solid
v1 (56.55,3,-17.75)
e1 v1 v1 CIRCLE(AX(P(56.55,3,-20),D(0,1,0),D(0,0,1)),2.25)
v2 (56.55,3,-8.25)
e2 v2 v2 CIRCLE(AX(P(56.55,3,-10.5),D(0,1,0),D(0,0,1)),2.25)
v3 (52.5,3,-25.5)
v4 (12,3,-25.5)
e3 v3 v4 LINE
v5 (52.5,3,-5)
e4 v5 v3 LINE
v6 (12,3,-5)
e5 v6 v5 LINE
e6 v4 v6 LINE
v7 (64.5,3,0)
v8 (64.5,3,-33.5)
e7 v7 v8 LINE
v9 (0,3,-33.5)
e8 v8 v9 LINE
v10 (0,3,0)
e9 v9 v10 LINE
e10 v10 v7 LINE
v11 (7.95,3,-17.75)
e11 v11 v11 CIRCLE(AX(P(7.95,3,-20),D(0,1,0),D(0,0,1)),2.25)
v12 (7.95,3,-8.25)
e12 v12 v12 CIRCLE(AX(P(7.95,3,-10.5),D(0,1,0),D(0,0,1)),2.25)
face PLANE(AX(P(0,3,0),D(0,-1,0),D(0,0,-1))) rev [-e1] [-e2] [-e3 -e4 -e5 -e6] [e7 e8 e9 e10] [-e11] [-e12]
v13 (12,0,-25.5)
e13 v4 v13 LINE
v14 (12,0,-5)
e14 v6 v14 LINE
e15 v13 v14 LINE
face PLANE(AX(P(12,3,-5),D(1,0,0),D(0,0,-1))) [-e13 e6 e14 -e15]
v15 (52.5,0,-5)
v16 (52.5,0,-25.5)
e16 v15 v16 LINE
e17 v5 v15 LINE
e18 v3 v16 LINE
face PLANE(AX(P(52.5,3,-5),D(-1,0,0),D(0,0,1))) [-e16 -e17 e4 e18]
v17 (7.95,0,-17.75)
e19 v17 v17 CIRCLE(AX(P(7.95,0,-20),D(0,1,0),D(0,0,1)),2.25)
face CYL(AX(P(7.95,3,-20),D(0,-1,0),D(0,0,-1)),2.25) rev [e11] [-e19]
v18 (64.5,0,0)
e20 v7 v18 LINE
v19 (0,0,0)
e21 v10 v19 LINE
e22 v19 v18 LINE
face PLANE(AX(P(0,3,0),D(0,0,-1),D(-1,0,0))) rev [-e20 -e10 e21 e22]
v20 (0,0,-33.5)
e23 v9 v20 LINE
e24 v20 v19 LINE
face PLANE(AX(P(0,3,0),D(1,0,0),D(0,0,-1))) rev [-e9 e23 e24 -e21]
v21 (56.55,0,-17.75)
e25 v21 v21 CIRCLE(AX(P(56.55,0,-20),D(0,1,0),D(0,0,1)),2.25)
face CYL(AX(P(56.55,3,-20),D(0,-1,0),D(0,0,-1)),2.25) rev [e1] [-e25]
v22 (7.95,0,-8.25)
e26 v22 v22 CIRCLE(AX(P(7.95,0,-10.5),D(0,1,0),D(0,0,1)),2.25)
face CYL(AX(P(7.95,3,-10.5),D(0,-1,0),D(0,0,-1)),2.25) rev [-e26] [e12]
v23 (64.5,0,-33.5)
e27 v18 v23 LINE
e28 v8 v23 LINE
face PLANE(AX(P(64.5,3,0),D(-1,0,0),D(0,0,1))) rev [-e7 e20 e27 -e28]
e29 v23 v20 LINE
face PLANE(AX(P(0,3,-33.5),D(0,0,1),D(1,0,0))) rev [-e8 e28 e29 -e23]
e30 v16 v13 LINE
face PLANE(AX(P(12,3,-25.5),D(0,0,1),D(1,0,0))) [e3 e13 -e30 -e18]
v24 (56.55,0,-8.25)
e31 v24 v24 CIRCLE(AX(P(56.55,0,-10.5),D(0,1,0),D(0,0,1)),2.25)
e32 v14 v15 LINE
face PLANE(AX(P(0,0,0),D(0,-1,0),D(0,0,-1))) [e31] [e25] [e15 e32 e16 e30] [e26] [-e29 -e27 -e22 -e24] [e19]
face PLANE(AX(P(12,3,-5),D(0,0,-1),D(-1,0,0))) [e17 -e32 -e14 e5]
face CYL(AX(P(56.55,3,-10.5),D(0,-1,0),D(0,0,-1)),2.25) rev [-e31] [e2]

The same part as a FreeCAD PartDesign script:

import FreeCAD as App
import Part
import Sketcher
from FreeCAD import Vector

doc = App.newDocument("Part")
body = doc.addObject("PartDesign::Body", "Body")

# Sketch on XZ plane
sketch1 = body.newObject("Sketcher::SketchObject", "Sketch")
sketch1.AttachmentSupport = (doc.getObject("XZ_Plane"), [""])
sketch1.MapMode = "FlatFace"
sketch1.addGeometry([
    Part.LineSegment(Vector(0, -33.5, 0), Vector(0, 0, 0)),  # 0
    Part.LineSegment(Vector(0, 0, 0), Vector(64.5, 0, 0)),  # 1
    Part.LineSegment(Vector(64.5, 0, 0), Vector(64.5, -33.5, 0)),  # 2
    Part.LineSegment(Vector(64.5, -33.5, 0), Vector(0, -33.5, 0)),  # 3
    Part.Circle(Vector(8, -10.5, 0), Vector(0, 0, 1), 2.2),  # 4
    Part.Circle(Vector(56.5, -10.5, 0), Vector(0, 0, 1), 2.2),  # 5
    Part.Circle(Vector(8, -20, 0), Vector(0, 0, 1), 2.2),  # 6
    Part.LineSegment(Vector(52.5, -5, 0), Vector(12, -5, 0)),  # 7
    Part.LineSegment(Vector(12, -5, 0), Vector(12, -25.5, 0)),  # 8
    Part.LineSegment(Vector(12, -25.5, 0), Vector(52.5, -25.5, 0)),  # 9
    Part.LineSegment(Vector(52.5, -25.5, 0), Vector(52.5, -5, 0)),  # 10
    Part.Circle(Vector(56.5, -20, 0), Vector(0, 0, 1), 2.2),  # 11
], False)
sketch1.addConstraint([
    Sketcher.Constraint("Coincident", 0, 2, 1, 1),
    Sketcher.Constraint("Coincident", 1, 2, 2, 1),
    Sketcher.Constraint("Coincident", 2, 2, 3, 1),
    Sketcher.Constraint("Coincident", 3, 2, 0, 1),
    Sketcher.Constraint("Coincident", 7, 2, 8, 1),
    Sketcher.Constraint("Coincident", 8, 2, 9, 1),
    Sketcher.Constraint("Coincident", 9, 2, 10, 1),
    Sketcher.Constraint("Coincident", 10, 2, 7, 1),
    Sketcher.Constraint("Vertical", 0),
    Sketcher.Constraint("Horizontal", 1),
    Sketcher.Constraint("Vertical", 2),
    Sketcher.Constraint("Horizontal", 3),
    Sketcher.Constraint("Horizontal", 7),
    Sketcher.Constraint("Vertical", 8),
    Sketcher.Constraint("Horizontal", 9),
    Sketcher.Constraint("Vertical", 10),
    Sketcher.Constraint("Coincident", 0, 2, -1, 1),
    Sketcher.Constraint("Equal", 4, 5),
    Sketcher.Constraint("Equal", 5, 6),
    Sketcher.Constraint("Equal", 6, 11),
    Sketcher.Constraint("Horizontal", 4, 3, 5, 3),
    Sketcher.Constraint("Horizontal", 6, 3, 11, 3),
    Sketcher.Constraint("Vertical", 4, 3, 6, 3),
    Sketcher.Constraint("Vertical", 5, 3, 11, 3),
    Sketcher.Constraint("Diameter", 4, 4.5),
    Sketcher.Constraint("DistanceX", 1, 1, 1, 2, 64.5),
    Sketcher.Constraint("DistanceX", 7, 2, 7, 1, 40.5),
    Sketcher.Constraint("DistanceY", 0, 1, 0, 2, 33.5),
    Sketcher.Constraint("DistanceY", 8, 2, 8, 1, 20.5),
    Sketcher.Constraint("DistanceY", 6, 3, -1, 1, 20.0),
    Sketcher.Constraint("DistanceX", -1, 1, 7, 2, 12.0),
    Sketcher.Constraint("DistanceY", 7, 2, -1, 1, 5.0),
    Sketcher.Constraint("DistanceY", 2, 2, 5, 3, 23.0),
    Sketcher.Constraint("DistanceX", 4, 3, 5, 3, 48.6),
    Sketcher.Constraint("DistanceX", -1, 1, 4, 3, 7.95),
])
pad1 = body.newObject("PartDesign::Pad", "Pad")
pad1.Profile = sketch1
pad1.Length = 3
pad1.Reversed = True

doc.recompute()
